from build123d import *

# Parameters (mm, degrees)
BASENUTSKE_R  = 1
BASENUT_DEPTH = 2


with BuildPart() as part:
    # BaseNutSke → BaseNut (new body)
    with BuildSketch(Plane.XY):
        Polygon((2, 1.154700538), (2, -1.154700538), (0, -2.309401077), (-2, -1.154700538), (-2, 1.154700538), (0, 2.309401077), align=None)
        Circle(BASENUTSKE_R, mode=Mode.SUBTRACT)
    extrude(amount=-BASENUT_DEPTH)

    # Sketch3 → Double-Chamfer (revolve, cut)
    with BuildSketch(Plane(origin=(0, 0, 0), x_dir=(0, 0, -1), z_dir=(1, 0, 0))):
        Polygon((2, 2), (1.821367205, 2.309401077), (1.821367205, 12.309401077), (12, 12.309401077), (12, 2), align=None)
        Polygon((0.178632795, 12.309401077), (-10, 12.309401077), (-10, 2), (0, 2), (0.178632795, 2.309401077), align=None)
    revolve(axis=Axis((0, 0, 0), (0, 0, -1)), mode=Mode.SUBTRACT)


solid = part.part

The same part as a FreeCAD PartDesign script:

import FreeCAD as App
import Part
import Sketcher
from FreeCAD import Vector
Q = App.Units.Quantity

doc = App.newDocument("Part")
body = doc.addObject("PartDesign::Body", "Body")

# Sketch on XY plane
sketch1 = body.newObject("Sketcher::SketchObject", "Sketch")
sketch1.AttachmentSupport = (doc.getObject("XY_Plane"), [""])
sketch1.MapMode = "FlatFace"
sketch1.addGeometry(Part.LineSegment(Vector(2, -1.2, 0), Vector(2, 1.2, 0)), False)
sketch1.addGeometry(Part.LineSegment(Vector(2, 1.2, 0), Vector(0, 2.3, 0)), False)
sketch1.addGeometry(Part.LineSegment(Vector(0, 2.3, 0), Vector(-2, 1.2, 0)), False)
sketch1.addGeometry(Part.LineSegment(Vector(-2, 1.2, 0), Vector(-2, -1.2, 0)), False)
sketch1.addGeometry(Part.LineSegment(Vector(-2, -1.2, 0), Vector(0, -2.3, 0)), False)
sketch1.addGeometry(Part.LineSegment(Vector(0, -2.3, 0), Vector(2, -1.2, 0)), False)
sketch1.addGeometry(Part.Circle(Vector(0, 0, 0), Vector(0, 0, 1), 1), False)
sketch1.addConstraint(Sketcher.Constraint("Coincident", 0, 2, 1, 1))
sketch1.addConstraint(Sketcher.Constraint("Coincident", 1, 2, 2, 1))
sketch1.addConstraint(Sketcher.Constraint("Coincident", 2, 2, 3, 1))
sketch1.addConstraint(Sketcher.Constraint("Coincident", 3, 2, 4, 1))
sketch1.addConstraint(Sketcher.Constraint("Coincident", 4, 2, 5, 1))
sketch1.addConstraint(Sketcher.Constraint("Coincident", 5, 2, 0, 1))
sketch1.addConstraint(Sketcher.Constraint("Vertical", 0))
sketch1.addConstraint(Sketcher.Constraint("Vertical", 3))
sketch1.addConstraint(Sketcher.Constraint("Coincident", 6, 3, -1, 1))
sketch1.addConstraint(Sketcher.Constraint("Symmetric", 0, 2, 3, 2, -1, 1))
sketch1.addConstraint(Sketcher.Constraint("Symmetric", 1, 2, 4, 2, -1, 1))
sketch1.addConstraint(Sketcher.Constraint("PointOnObject", 1, 2, -2))
sketch1.addConstraint(Sketcher.Constraint("Parallel", 2, 5))
sketch1.addConstraint(Sketcher.Constraint("Horizontal", 0, 2, 2, 2))
sketch1.addConstraint(Sketcher.Constraint("Diameter", 6, Q("2 mm")))
sketch1.addConstraint(Sketcher.Constraint("Angle", 1, Q("150 deg")))
sketch1.addConstraint(Sketcher.Constraint("DistanceX", -1, 1, 0, 2, Q("2 mm")))
sketch1.addConstraint(Sketcher.Constraint("DistanceY", 0, 1, 0, 2, Q("2.309401 mm")))
pad1 = body.newObject("PartDesign::Pad", "Pad")
pad1.Profile = sketch1
pad1.Length = 2
pad1.Reversed = True

# Sketch on YZ plane
sketch2 = body.newObject("Sketcher::SketchObject", "Sketch001")
sketch2.AttachmentSupport = (doc.getObject("YZ_Plane"), [""])
sketch2.MapMode = "FlatFace"
sketch2.addGeometry(Part.LineSegment(Vector(2.31, -1.82, 0), Vector(2, -2, 0)), False)
sketch2.addGeometry(Part.LineSegment(Vector(2, -2, 0), Vector(2, -12, 0)), False)
sketch2.addGeometry(Part.LineSegment(Vector(2, -12, 0), Vector(12.31, -12, 0)), False)
sketch2.addGeometry(Part.LineSegment(Vector(12.31, -12, 0), Vector(12.31, -1.82, 0)), False)
sketch2.addGeometry(Part.LineSegment(Vector(12.31, -1.82, 0), Vector(2.31, -1.82, 0)), False)
sketch2.addGeometry(Part.LineSegment(Vector(12.31, -0.18, 0), Vector(12.31, 10, 0)), False)
sketch2.addGeometry(Part.LineSegment(Vector(12.31, 10, 0), Vector(2, 10, 0)), False)
sketch2.addGeometry(Part.LineSegment(Vector(2, 10, 0), Vector(2, 0, 0)), False)
sketch2.addGeometry(Part.LineSegment(Vector(2, 0, 0), Vector(2.31, -0.18, 0)), False)
sketch2.addGeometry(Part.LineSegment(Vector(2.31, -0.18, 0), Vector(12.31, -0.18, 0)), False)
sketch2.addConstraint(Sketcher.Constraint("Coincident", 0, 2, 1, 1))
sketch2.addConstraint(Sketcher.Constraint("Coincident", 1, 2, 2, 1))
sketch2.addConstraint(Sketcher.Constraint("Coincident", 2, 2, 3, 1))
sketch2.addConstraint(Sketcher.Constraint("Coincident", 3, 2, 4, 1))
sketch2.addConstraint(Sketcher.Constraint("Coincident", 4, 2, 0, 1))
sketch2.addConstraint(Sketcher.Constraint("Coincident", 5, 2, 6, 1))
sketch2.addConstraint(Sketcher.Constraint("Coincident", 6, 2, 7, 1))
sketch2.addConstraint(Sketcher.Constraint("Coincident", 7, 2, 8, 1))
sketch2.addConstraint(Sketcher.Constraint("Coincident", 8, 2, 9, 1))
sketch2.addConstraint(Sketcher.Constraint("Coincident", 9, 2, 5, 1))
sketch2.addConstraint(Sketcher.Constraint("Vertical", 1))
sketch2.addConstraint(Sketcher.Constraint("Horizontal", 2))
sketch2.addConstraint(Sketcher.Constraint("Vertical", 3))
sketch2.addConstraint(Sketcher.Constraint("Horizontal", 4))
sketch2.addConstraint(Sketcher.Constraint("Vertical", 5))
sketch2.addConstraint(Sketcher.Constraint("Horizontal", 6))
sketch2.addConstraint(Sketcher.Constraint("Vertical", 7))
sketch2.addConstraint(Sketcher.Constraint("Horizontal", 9))
sketch2.addConstraint(Sketcher.Constraint("PointOnObject", 7, 2, -1))
sketch2.addConstraint(Sketcher.Constraint("Vertical", 3, 2, 5, 2))
sketch2.addConstraint(Sketcher.Constraint("Vertical", 1, 2, 6, 2))
sketch2.addConstraint(Sketcher.Constraint("Vertical", 4, 2, 8, 2))
sketch2.addConstraint(Sketcher.Constraint("Equal", 9, 1))
sketch2.addConstraint(Sketcher.Constraint("Equal", 3, 5))
sketch2.addConstraint(Sketcher.Constraint("Equal", 1, 7))
sketch2.addConstraint(Sketcher.Constraint("DistanceX", 4, 2, 4, 1, Q("10 mm")))
sketch2.addConstraint(Sketcher.Constraint("Angle", 0, Q("-150 deg")))
sketch2.addConstraint(Sketcher.Constraint("DistanceX", -1, 1, 0, 2, Q("2 mm")))
sketch2.addConstraint(Sketcher.Constraint("DistanceY", 0, 2, -1, 1, Q("2 mm")))
sketch2.addConstraint(Sketcher.Constraint("DistanceX", 2, 1, 2, 2, Q("10.309401 mm")))
groove = body.newObject("PartDesign::Groove", "Groove")
groove.Profile = sketch2
groove.ReferenceAxis = (sketch2, ["V_Axis"])
groove.Angle = 360

doc.recompute()
